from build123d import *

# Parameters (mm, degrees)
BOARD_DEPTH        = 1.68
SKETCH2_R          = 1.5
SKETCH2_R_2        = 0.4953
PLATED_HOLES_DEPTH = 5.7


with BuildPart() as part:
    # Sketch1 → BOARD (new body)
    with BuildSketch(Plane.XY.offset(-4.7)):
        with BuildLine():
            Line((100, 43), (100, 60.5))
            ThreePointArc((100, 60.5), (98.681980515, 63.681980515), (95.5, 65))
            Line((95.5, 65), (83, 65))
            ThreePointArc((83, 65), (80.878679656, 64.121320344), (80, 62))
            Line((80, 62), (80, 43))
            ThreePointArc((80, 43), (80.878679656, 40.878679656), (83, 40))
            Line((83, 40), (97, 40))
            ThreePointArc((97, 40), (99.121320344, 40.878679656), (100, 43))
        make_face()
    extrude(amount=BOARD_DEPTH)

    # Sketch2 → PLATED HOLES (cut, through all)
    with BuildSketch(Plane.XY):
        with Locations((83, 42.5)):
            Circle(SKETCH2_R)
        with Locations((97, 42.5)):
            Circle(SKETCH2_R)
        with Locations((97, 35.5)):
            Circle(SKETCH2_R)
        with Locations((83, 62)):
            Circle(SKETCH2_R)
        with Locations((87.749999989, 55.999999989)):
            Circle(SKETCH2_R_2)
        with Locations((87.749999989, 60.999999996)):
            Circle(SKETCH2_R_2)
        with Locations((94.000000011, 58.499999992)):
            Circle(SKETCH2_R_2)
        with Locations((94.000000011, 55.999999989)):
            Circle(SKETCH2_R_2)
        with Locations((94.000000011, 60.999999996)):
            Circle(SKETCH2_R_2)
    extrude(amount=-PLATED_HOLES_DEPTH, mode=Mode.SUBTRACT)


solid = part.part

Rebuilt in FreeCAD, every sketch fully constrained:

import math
import FreeCAD as App
import Part
import Sketcher
from FreeCAD import Vector

doc = App.newDocument("Part")
body = doc.addObject("PartDesign::Body", "Body")

# Sketch on XY plane
sketch1 = body.newObject("Sketcher::SketchObject", "Sketch")
sketch1.AttachmentSupport = (doc.getObject("XY_Plane"), [""])
sketch1.MapMode = "FlatFace"
sketch1.AttachmentOffset = App.Placement(Vector(0, 0, -4.7), App.Rotation())
sketch1.addGeometry(Part.LineSegment(Vector(100, 43, 0), Vector(100, 60.5, 0)), False)
sketch1.addGeometry(Part.ArcOfCircle(Part.Circle(Vector(95.5, 60.5, 0), Vector(0, 0, 1), 4.5), math.radians(0), math.radians(90)), False)
sketch1.addGeometry(Part.LineSegment(Vector(95.5, 65, 0), Vector(83, 65, 0)), False)
sketch1.addGeometry(Part.ArcOfCircle(Part.Circle(Vector(83, 62, 0), Vector(0, 0, 1), 3), math.radians(90), math.radians(180)), False)
sketch1.addGeometry(Part.LineSegment(Vector(80, 62, 0), Vector(80, 43, 0)), False)
sketch1.addGeometry(Part.ArcOfCircle(Part.Circle(Vector(83, 43, 0), Vector(0, 0, 1), 3), math.radians(180), math.radians(270)), False)
sketch1.addGeometry(Part.LineSegment(Vector(83, 40, 0), Vector(97, 40, 0)), False)
sketch1.addGeometry(Part.ArcOfCircle(Part.Circle(Vector(97, 43, 0), Vector(0, 0, 1), 3), math.radians(-90), math.radians(0)), False)
sketch1.addConstraint(Sketcher.Constraint("Tangent", 0, 2, 1, 1))
sketch1.addConstraint(Sketcher.Constraint("Tangent", 1, 2, 2, 1))
sketch1.addConstraint(Sketcher.Constraint("Tangent", 2, 2, 3, 1))
sketch1.addConstraint(Sketcher.Constraint("Tangent", 3, 2, 4, 1))
sketch1.addConstraint(Sketcher.Constraint("Tangent", 4, 2, 5, 1))
sketch1.addConstraint(Sketcher.Constraint("Tangent", 5, 2, 6, 1))
sketch1.addConstraint(Sketcher.Constraint("Tangent", 6, 2, 7, 1))
sketch1.addConstraint(Sketcher.Constraint("Tangent", 7, 2, 0, 1))
sketch1.addConstraint(Sketcher.Constraint("Vertical", 0))
sketch1.addConstraint(Sketcher.Constraint("Horizontal", 2))
sketch1.addConstraint(Sketcher.Constraint("Vertical", 4))
sketch1.addConstraint(Sketcher.Constraint("Horizontal", 6))
sketch1.addConstraint(Sketcher.Constraint("Equal", 3, 5))
sketch1.addConstraint(Sketcher.Constraint("Equal", 5, 7))
sketch1.addConstraint(Sketcher.Constraint("Radius", 3, 3.0))
sketch1.addConstraint(Sketcher.Constraint("Radius", 1, 4.5))
sketch1.addConstraint(Sketcher.Constraint("DistanceX", 6, 1, 6, 2, 14.0))
sketch1.addConstraint(Sketcher.Constraint("DistanceY", 4, 2, 4, 1, 19.0))
sketch1.addConstraint(Sketcher.Constraint("DistanceX", -1, 1, 3, 3, 83.0))
sketch1.addConstraint(Sketcher.Constraint("DistanceY", -1, 1, 3, 3, 62.0))
pad1 = body.newObject("PartDesign::Pad", "Pad")
pad1.Profile = sketch1
pad1.Length = 1.68

# Sketch on XY plane
sketch2 = body.newObject("Sketcher::SketchObject", "Sketch001")
sketch2.AttachmentSupport = (doc.getObject("XY_Plane"), [""])
sketch2.MapMode = "FlatFace"
sketch2.addGeometry(Part.Circle(Vector(83, 42.5, 0), Vector(0, 0, 1), 1.5), False)
sketch2.addGeometry(Part.Circle(Vector(97, 42.5, 0), Vector(0, 0, 1), 1.5), False)
sketch2.addGeometry(Part.Circle(Vector(97, 35.5, 0), Vector(0, 0, 1), 1.5), False)
sketch2.addGeometry(Part.Circle(Vector(83, 62, 0), Vector(0, 0, 1), 1.5), False)
sketch2.addGeometry(Part.Circle(Vector(87.75, 56, 0), Vector(0, 0, 1), 0.4953), False)
sketch2.addGeometry(Part.Circle(Vector(87.75, 61, 0), Vector(0, 0, 1), 0.4953), False)
sketch2.addGeometry(Part.Circle(Vector(94, 58.5, 0), Vector(0, 0, 1), 0.4953), False)
sketch2.addGeometry(Part.Circle(Vector(94, 56, 0), Vector(0, 0, 1), 0.4953), False)
sketch2.addGeometry(Part.Circle(Vector(94, 61, 0), Vector(0, 0, 1), 0.4953), False)
sketch2.addConstraint(Sketcher.Constraint("Equal", 0, 1))
sketch2.addConstraint(Sketcher.Constraint("Equal", 1, 2))
sketch2.addConstraint(Sketcher.Constraint("Equal", 2, 3))
sketch2.addConstraint(Sketcher.Constraint("Equal", 4, 5))
sketch2.addConstraint(Sketcher.Constraint("Equal", 5, 6))
sketch2.addConstraint(Sketcher.Constraint("Equal", 6, 7))
sketch2.addConstraint(Sketcher.Constraint("Equal", 7, 8))
sketch2.addConstraint(Sketcher.Constraint("Horizontal", 0, 3, 1, 3))
sketch2.addConstraint(Sketcher.Constraint("Horizontal", 4, 3, 7, 3))
sketch2.addConstraint(Sketcher.Constraint("Horizontal", 5, 3, 8, 3))
sketch2.addConstraint(Sketcher.Constraint("Vertical", 1, 3, 2, 3))
sketch2.addConstraint(Sketcher.Constraint("Vertical", 0, 3, 3, 3))
sketch2.addConstraint(Sketcher.Constraint("Vertical", 4, 3, 5, 3))
sketch2.addConstraint(Sketcher.Constraint("Vertical", 6, 3, 7, 3))
sketch2.addConstraint(Sketcher.Constraint("Vertical", 7, 3, 8, 3))
sketch2.addConstraint(Sketcher.Constraint("Diameter", 0, 3.0))
sketch2.addConstraint(Sketcher.Constraint("DistanceX", -1, 1, 0, 3, 83.0))
sketch2.addConstraint(Sketcher.Constraint("DistanceX", -1, 1, 1, 3, 97.0))
sketch2.addConstraint(Sketcher.Constraint("DistanceY", -1, 1, 3, 3, 62.0))
sketch2.addConstraint(Sketcher.Constraint("DistanceY", -1, 1, 4, 3, 56.0))
sketch2.addConstraint(Sketcher.Constraint("DistanceY", -1, 1, 5, 3, 61.0))
sketch2.addConstraint(Sketcher.Constraint("DistanceX", -1, 1, 6, 3, 94.0))
sketch2.addConstraint(Sketcher.Constraint("DistanceY", 2, 3, 1, 3, 7.0))
sketch2.addConstraint(Sketcher.Constraint("DistanceY", 1, 3, 6, 3, 16.0))
sketch2.addConstraint(Sketcher.Constraint("Diameter", 4, 0.9906))
sketch2.addConstraint(Sketcher.Constraint("DistanceY", -1, 1, 0, 3, 42.5))
sketch2.addConstraint(Sketcher.Constraint("DistanceX", -1, 1, 4, 3, 87.75))
pocket1 = body.newObject("PartDesign::Pocket", "Pocket")
pocket1.Profile = sketch2
pocket1.Type = "ThroughAll"

doc.recompute()
